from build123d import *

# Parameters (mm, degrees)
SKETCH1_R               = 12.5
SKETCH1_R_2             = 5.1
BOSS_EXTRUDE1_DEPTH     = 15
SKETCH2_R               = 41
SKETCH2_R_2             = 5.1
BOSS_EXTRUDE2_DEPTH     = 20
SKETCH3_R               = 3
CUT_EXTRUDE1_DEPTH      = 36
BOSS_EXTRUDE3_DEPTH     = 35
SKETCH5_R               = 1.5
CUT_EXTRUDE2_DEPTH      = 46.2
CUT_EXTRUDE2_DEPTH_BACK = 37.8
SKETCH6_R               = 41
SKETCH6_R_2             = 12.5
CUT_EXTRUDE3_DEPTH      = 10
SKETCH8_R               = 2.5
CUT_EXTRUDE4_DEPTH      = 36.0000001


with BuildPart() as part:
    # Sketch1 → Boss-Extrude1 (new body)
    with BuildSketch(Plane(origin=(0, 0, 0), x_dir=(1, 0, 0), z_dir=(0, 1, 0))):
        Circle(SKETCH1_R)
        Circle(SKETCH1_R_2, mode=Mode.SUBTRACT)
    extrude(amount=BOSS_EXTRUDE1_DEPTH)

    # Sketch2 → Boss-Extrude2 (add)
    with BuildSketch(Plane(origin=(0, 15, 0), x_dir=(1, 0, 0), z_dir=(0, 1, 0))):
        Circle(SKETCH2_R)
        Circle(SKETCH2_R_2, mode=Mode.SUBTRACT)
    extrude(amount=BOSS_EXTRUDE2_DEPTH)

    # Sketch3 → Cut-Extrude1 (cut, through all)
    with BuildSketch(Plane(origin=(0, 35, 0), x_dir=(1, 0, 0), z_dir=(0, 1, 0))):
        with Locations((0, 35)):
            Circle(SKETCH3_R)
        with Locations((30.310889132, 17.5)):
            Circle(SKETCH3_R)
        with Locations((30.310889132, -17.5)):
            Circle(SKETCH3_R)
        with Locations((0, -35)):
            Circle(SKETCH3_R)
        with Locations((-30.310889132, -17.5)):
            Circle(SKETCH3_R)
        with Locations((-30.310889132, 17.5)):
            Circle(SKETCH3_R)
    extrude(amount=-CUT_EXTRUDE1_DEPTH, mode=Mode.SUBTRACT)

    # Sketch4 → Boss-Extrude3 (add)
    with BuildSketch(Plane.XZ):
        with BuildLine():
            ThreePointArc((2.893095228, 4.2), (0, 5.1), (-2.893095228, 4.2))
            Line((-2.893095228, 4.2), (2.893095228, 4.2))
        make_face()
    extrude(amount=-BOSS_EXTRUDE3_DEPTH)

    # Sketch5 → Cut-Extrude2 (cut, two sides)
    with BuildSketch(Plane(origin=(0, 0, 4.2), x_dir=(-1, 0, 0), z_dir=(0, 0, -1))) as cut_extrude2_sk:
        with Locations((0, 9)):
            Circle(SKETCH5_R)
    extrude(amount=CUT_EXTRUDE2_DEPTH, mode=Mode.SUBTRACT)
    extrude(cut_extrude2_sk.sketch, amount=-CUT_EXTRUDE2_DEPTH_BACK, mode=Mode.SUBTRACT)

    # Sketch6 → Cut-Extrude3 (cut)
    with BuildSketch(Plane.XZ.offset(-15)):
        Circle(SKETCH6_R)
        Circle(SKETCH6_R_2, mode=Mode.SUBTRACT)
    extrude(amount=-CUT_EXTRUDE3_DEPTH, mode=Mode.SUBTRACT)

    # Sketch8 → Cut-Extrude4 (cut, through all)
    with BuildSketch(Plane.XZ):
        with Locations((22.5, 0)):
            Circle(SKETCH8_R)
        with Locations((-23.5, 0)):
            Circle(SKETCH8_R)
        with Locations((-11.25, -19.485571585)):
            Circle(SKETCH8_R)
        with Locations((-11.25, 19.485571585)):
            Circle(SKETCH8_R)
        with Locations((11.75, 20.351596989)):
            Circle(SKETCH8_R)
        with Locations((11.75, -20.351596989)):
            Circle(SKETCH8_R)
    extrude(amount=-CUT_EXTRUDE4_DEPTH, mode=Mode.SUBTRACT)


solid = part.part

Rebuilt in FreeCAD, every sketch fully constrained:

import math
import FreeCAD as App
import Part
import Sketcher

V = App.Vector
Q = App.Units.Quantity

doc = App.newDocument("Part")
body = doc.addObject("PartDesign::Body", "Body")

sketch1 = body.newObject("Sketcher::SketchObject", "Sketch")
sketch1.AttachmentSupport = (doc.getObject("XZ_Plane"), [""])
sketch1.MapMode = "FlatFace"
sketch1.addGeometry(Part.Circle(V(0, 0, 0), V(0, 0, 1), 12), False)
sketch1.addGeometry(Part.Circle(V(0, 0, 0), V(0, 0, 1), 5), False)
sketch1.addConstraint(Sketcher.Constraint("Coincident", 0, 3, -1, 1))
sketch1.addConstraint(Sketcher.Constraint("Coincident", 1, 3, -1, 1))
sketch1.addConstraint(Sketcher.Constraint("Diameter", 0, Q("25 mm")))
sketch1.addConstraint(Sketcher.Constraint("Diameter", 1, Q("10.2 mm")))
pad1 = body.newObject("PartDesign::Pad", "Pad")
pad1.Profile = sketch1
pad1.Length = 15
pad1.Reversed = True

sketch2 = body.newObject("Sketcher::SketchObject", "Sketch001")
sketch2.AttachmentSupport = (doc.getObject("XZ_Plane"), [""])
sketch2.MapMode = "FlatFace"
sketch2.AttachmentOffset = App.Placement(V(0, 0, -15), App.Rotation())
sketch2.addGeometry(Part.Circle(V(0, 0, 0), V(0, 0, 1), 41), False)
sketch2.addGeometry(Part.Circle(V(0, 0, 0), V(0, 0, 1), 5), False)
sketch2.addConstraint(Sketcher.Constraint("Coincident", 0, 3, -1, 1))
sketch2.addConstraint(Sketcher.Constraint("Coincident", 1, 3, -1, 1))
sketch2.addConstraint(Sketcher.Constraint("Diameter", 0, Q("82 mm")))
sketch2.addConstraint(Sketcher.Constraint("Diameter", 1, Q("10.2 mm")))
pad2 = body.newObject("PartDesign::Pad", "Pad001")
pad2.Profile = sketch2
pad2.Length = 20
pad2.Reversed = True

sketch3 = body.newObject("Sketcher::SketchObject", "Sketch002")
sketch3.AttachmentSupport = (doc.getObject("XZ_Plane"), [""])
sketch3.MapMode = "FlatFace"
sketch3.AttachmentOffset = App.Placement(V(0, 0, -35), App.Rotation())
sketch3.addGeometry(Part.Circle(V(0, -35, 0), V(0, 0, 1), 3), False)
sketch3.addGeometry(Part.Circle(V(30.3, -17.5, 0), V(0, 0, 1), 3), False)
sketch3.addGeometry(Part.Circle(V(30.3, 17.5, 0), V(0, 0, 1), 3), False)
sketch3.addGeometry(Part.Circle(V(0, 35, 0), V(0, 0, 1), 3), False)
sketch3.addGeometry(Part.Circle(V(-30.3, 17.5, 0), V(0, 0, 1), 3), False)
sketch3.addGeometry(Part.Circle(V(-30.3, -17.5, 0), V(0, 0, 1), 3), False)
sketch3.addConstraint(Sketcher.Constraint("Equal", 0, 1))
sketch3.addConstraint(Sketcher.Constraint("Equal", 1, 2))
sketch3.addConstraint(Sketcher.Constraint("Equal", 2, 3))
sketch3.addConstraint(Sketcher.Constraint("Equal", 3, 4))
sketch3.addConstraint(Sketcher.Constraint("Equal", 4, 5))
sketch3.addConstraint(Sketcher.Constraint("Symmetric", 0, 3, 3, 3, -1, 1))
sketch3.addConstraint(Sketcher.Constraint("Symmetric", 1, 3, 4, 3, -1, 1))
sketch3.addConstraint(Sketcher.Constraint("Symmetric", 2, 3, 5, 3, -1, 1))
sketch3.addConstraint(Sketcher.Constraint("Symmetric", 2, 3, 4, 3, -2))
sketch3.addConstraint(Sketcher.Constraint("PointOnObject", 0, 3, -2))
sketch3.addConstraint(Sketcher.Constraint("Diameter", 0, Q("6 mm")))
sketch3.addConstraint(Sketcher.Constraint("DistanceY", 0, 3, -1, 1, Q("35 mm")))
sketch3.addConstraint(Sketcher.Constraint("DistanceY", 1, 3, 2, 3, Q("35 mm")))
sketch3.addConstraint(Sketcher.Constraint("DistanceX", -1, 1, 1, 3, Q("30.310889 mm")))
pocket1 = body.newObject("PartDesign::Pocket", "Pocket")
pocket1.Profile = sketch3
pocket1.Type = "ThroughAll"
pocket1.Reversed = True

sketch4 = body.newObject("Sketcher::SketchObject", "Sketch003")
sketch4.AttachmentSupport = (doc.getObject("XZ_Plane"), [""])
sketch4.MapMode = "FlatFace"
sketch4.addGeometry(Part.ArcOfCircle(Part.Circle(V(0, 0, 0), V(0, 0, 1), 5), math.radians(55), math.radians(125)), False)
sketch4.addGeometry(Part.LineSegment(V(-3, 4, 0), V(3, 4, 0)), False)
sketch4.addConstraint(Sketcher.Constraint("Coincident", 0, 1, 1, 2))
sketch4.addConstraint(Sketcher.Constraint("Coincident", 1, 1, 0, 2))
sketch4.addConstraint(Sketcher.Constraint("Horizontal", 1))
sketch4.addConstraint(Sketcher.Constraint("Coincident", 0, 3, -1, 1))
sketch4.addConstraint(Sketcher.Constraint("Radius", 0, Q("5.1 mm")))
sketch4.addConstraint(Sketcher.Constraint("DistanceY", -1, 1, 0, 1, Q("4.2 mm")))
pad3 = body.newObject("PartDesign::Pad", "Pad002")
pad3.Profile = sketch4
pad3.Length = 35
pad3.Reversed = True

sketch5 = body.newObject("Sketcher::SketchObject", "Sketch004")
sketch5.AttachmentSupport = (doc.getObject("XY_Plane"), [""])
sketch5.MapMode = "FlatFace"
sketch5.AttachmentOffset = App.Placement(V(0, 0, 4.2), App.Rotation())
sketch5.addGeometry(Part.Circle(V(0, 9, 0), V(0, 0, 1), 1.5), False)
sketch5.addConstraint(Sketcher.Constraint("PointOnObject", 0, 3, -2))
sketch5.addConstraint(Sketcher.Constraint("Diameter", 0, Q("3 mm")))
sketch5.addConstraint(Sketcher.Constraint("DistanceY", -1, 1, 0, 3, Q("9 mm")))
pocket2 = body.newObject("PartDesign::Pocket", "Pocket001")
pocket2.Profile = sketch5
pocket2.Type = "ThroughAll"
pocket2.Midplane = True

sketch6 = body.newObject("Sketcher::SketchObject", "Sketch005")
sketch6.AttachmentSupport = (doc.getObject("XZ_Plane"), [""])
sketch6.MapMode = "FlatFace"
sketch6.AttachmentOffset = App.Placement(V(0, 0, -15), App.Rotation())
sketch6.addGeometry(Part.Circle(V(0, 0, 0), V(0, 0, 1), 41), False)
sketch6.addGeometry(Part.Circle(V(0, 0, 0), V(0, 0, 1), 12), False)
sketch6.addConstraint(Sketcher.Constraint("Coincident", 0, 3, -1, 1))
sketch6.addConstraint(Sketcher.Constraint("Coincident", 1, 3, -1, 1))
sketch6.addConstraint(Sketcher.Constraint("Diameter", 0, Q("82 mm")))
sketch6.addConstraint(Sketcher.Constraint("Diameter", 1, Q("25 mm")))
pocket3 = body.newObject("PartDesign::Pocket", "Pocket002")
pocket3.Profile = sketch6
pocket3.Length = 10

sketch7 = body.newObject("Sketcher::SketchObject", "Sketch006")
sketch7.AttachmentSupport = (doc.getObject("XZ_Plane"), [""])
sketch7.MapMode = "FlatFace"
sketch7.addGeometry(Part.Circle(V(22.5, 0, 0), V(0, 0, 1), 2.5), False)
sketch7.addGeometry(Part.Circle(V(-23.5, 0, 0), V(0, 0, 1), 2.5), False)
sketch7.addGeometry(Part.Circle(V(-11.2, -19.5, 0), V(0, 0, 1), 2.5), False)
sketch7.addGeometry(Part.Circle(V(-11.2, 19.5, 0), V(0, 0, 1), 2.5), False)
sketch7.addGeometry(Part.Circle(V(11.8, 20.4, 0), V(0, 0, 1), 2.5), False)
sketch7.addGeometry(Part.Circle(V(11.8, -20.4, 0), V(0, 0, 1), 2.5), False)
sketch7.addConstraint(Sketcher.Constraint("Equal", 0, 1))
sketch7.addConstraint(Sketcher.Constraint("Equal", 1, 2))
sketch7.addConstraint(Sketcher.Constraint("Equal", 2, 3))
sketch7.addConstraint(Sketcher.Constraint("Equal", 3, 4))
sketch7.addConstraint(Sketcher.Constraint("Equal", 4, 5))
sketch7.addConstraint(Sketcher.Constraint("Symmetric", 2, 3, 3, 3, -1))
sketch7.addConstraint(Sketcher.Constraint("Symmetric", 4, 3, 5, 3, -1))
sketch7.addConstraint(Sketcher.Constraint("PointOnObject", 0, 3, -1))
sketch7.addConstraint(Sketcher.Constraint("PointOnObject", 1, 3, -1))
sketch7.addConstraint(Sketcher.Constraint("Diameter", 0, Q("5 mm")))
sketch7.addConstraint(Sketcher.Constraint("DistanceX", 1, 3, 0, 3, Q("46 mm")))
sketch7.addConstraint(Sketcher.Constraint("DistanceX", 3, 3, 4, 3, Q("23 mm")))
sketch7.addConstraint(Sketcher.Constraint("DistanceX", -1, 1, 0, 3, Q("22.5 mm")))
sketch7.addConstraint(Sketcher.Constraint("DistanceX", 2, 3, -1, 1, Q("11.25 mm")))
sketch7.addConstraint(Sketcher.Constraint("DistanceY", 2, 3, -1, 1, Q("19.485572 mm")))
sketch7.addConstraint(Sketcher.Constraint("DistanceY", 2, 3, 4, 3, Q("39.837169 mm")))
pocket4 = body.newObject("PartDesign::Pocket", "Pocket003")
pocket4.Profile = sketch7
pocket4.Type = "ThroughAll"

doc.recompute()
